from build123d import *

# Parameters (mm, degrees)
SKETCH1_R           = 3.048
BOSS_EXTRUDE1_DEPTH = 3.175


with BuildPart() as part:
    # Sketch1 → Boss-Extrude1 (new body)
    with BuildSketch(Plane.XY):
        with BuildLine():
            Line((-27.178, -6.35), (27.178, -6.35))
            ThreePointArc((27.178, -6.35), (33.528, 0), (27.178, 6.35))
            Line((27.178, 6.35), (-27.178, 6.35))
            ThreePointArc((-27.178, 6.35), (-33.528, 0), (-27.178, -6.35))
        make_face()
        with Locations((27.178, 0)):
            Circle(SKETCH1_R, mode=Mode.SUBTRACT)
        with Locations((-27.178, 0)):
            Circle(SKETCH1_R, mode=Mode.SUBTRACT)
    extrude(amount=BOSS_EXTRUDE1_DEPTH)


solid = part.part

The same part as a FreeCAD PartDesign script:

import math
import FreeCAD as App
import Part
import Sketcher
Q = App.Units.Quantity

doc = App.newDocument("Part")
body = doc.addObject("PartDesign::Body", "Body")

sketch1 = body.newObject("Sketcher::SketchObject", "Sketch")
sketch1.AttachmentSupport = (doc.getObject("XY_Plane"), [""])
sketch1.MapMode = "FlatFace"
sketch1.addGeometry([
    Part.LineSegment(App.Vector(-27.178, -6.35, 0), App.Vector(27.178, -6.35, 0)),
    Part.ArcOfCircle(Part.Circle(App.Vector(27.178, 0, 0), App.Vector(0, 0, 1), 6.35), math.radians(-90), math.radians(90)),
    Part.LineSegment(App.Vector(27.178, 6.35, 0), App.Vector(-27.178, 6.35, 0)),
    Part.ArcOfCircle(Part.Circle(App.Vector(-27.178, 0, 0), App.Vector(0, 0, 1), 6.35), math.radians(90), math.radians(270)),
    Part.Circle(App.Vector(-27.178, 0, 0), App.Vector(0, 0, 1), 3.048),
    Part.Circle(App.Vector(27.178, 0, 0), App.Vector(0, 0, 1), 3.048),
], False)
sketch1.addConstraint([
    Sketcher.Constraint("Tangent", 0, 2, 1, 1),
    Sketcher.Constraint("Tangent", 1, 2, 2, 1),
    Sketcher.Constraint("Tangent", 2, 2, 3, 1),
    Sketcher.Constraint("Tangent", 3, 2, 0, 1),
    Sketcher.Constraint("Horizontal", 0),
    Sketcher.Constraint("Horizontal", 2),
    Sketcher.Constraint("Coincident", 4, 3, 3, 3),
    Sketcher.Constraint("Coincident", 5, 3, 1, 3),
    Sketcher.Constraint("Equal", 4, 5),
    Sketcher.Constraint("Symmetric", 1, 3, 3, 3, -1, 1),
    Sketcher.Constraint("Diameter", 4, Q("0.24 in")),
    Sketcher.Constraint("Radius", 1, Q("0.25 in")),
    Sketcher.Constraint("DistanceX", 0, 1, 0, 2, Q("2.14 in")),
])
pad1 = body.newObject("PartDesign::Pad", "Pad")
pad1.Profile = sketch1
pad1.Length = Q("0.125 in")

doc.recompute()
